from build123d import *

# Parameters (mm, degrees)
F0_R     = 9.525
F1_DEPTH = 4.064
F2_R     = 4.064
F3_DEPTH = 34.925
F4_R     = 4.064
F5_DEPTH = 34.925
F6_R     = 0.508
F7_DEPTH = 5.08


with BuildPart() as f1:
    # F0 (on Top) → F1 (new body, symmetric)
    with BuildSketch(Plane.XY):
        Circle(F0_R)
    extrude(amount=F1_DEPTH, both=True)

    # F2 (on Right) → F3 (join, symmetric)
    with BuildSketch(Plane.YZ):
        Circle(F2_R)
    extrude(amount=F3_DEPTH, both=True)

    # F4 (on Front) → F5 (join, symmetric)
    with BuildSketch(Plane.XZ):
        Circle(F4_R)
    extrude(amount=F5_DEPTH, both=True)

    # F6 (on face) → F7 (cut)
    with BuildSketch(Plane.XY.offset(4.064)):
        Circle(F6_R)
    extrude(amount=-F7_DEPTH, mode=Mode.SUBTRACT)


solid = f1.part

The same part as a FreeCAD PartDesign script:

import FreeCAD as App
import Part
import Sketcher
from FreeCAD import Vector
Q = App.Units.Quantity

doc = App.newDocument("Part")
body = doc.addObject("PartDesign::Body", "Body")

# Sketch on XY plane
sketch1 = body.newObject("Sketcher::SketchObject", "Sketch")
sketch1.AttachmentSupport = (doc.getObject("XY_Plane"), [""])
sketch1.MapMode = "FlatFace"
sketch1.addGeometry(Part.Circle(Vector(0, 0, 0), Vector(0, 0, 1), 10), False)
sketch1.addConstraint([
    Sketcher.Constraint("Coincident", 0, 3, -1, 1),
    Sketcher.Constraint("Diameter", 0, Q("0.75 in")),
])
pad1 = body.newObject("PartDesign::Pad", "Pad")
pad1.Profile = sketch1
pad1.Length = Q("0.32 in")
pad1.Midplane = True

# Sketch on YZ plane
sketch2 = body.newObject("Sketcher::SketchObject", "Sketch001")
sketch2.AttachmentSupport = (doc.getObject("YZ_Plane"), [""])
sketch2.MapMode = "FlatFace"
sketch2.addGeometry(Part.Circle(Vector(0, 0, 0), Vector(0, 0, 1), 4.1), False)
sketch2.addConstraint([
    Sketcher.Constraint("Coincident", 0, 3, -1, 1),
    Sketcher.Constraint("Diameter", 0, Q("0.32 in")),
])
pad2 = body.newObject("PartDesign::Pad", "Pad001")
pad2.Profile = sketch2
pad2.Length = Q("2.75 in")
pad2.Midplane = True

# Sketch on XZ plane
sketch3 = body.newObject("Sketcher::SketchObject", "Sketch002")
sketch3.AttachmentSupport = (doc.getObject("XZ_Plane"), [""])
sketch3.MapMode = "FlatFace"
sketch3.addGeometry(Part.Circle(Vector(0, 0, 0), Vector(0, 0, 1), 4.1), False)
sketch3.addConstraint([
    Sketcher.Constraint("Coincident", 0, 3, -1, 1),
    Sketcher.Constraint("Diameter", 0, Q("0.32 in")),
])
pad3 = body.newObject("PartDesign::Pad", "Pad002")
pad3.Profile = sketch3
pad3.Length = Q("2.75 in")
pad3.Midplane = True

# Sketch on XY plane
sketch4 = body.newObject("Sketcher::SketchObject", "Sketch003")
sketch4.AttachmentSupport = (doc.getObject("XY_Plane"), [""])
sketch4.MapMode = "FlatFace"
sketch4.AttachmentOffset = App.Placement(Vector(0, 0, 0.16 * 25.4), App.Rotation())
sketch4.addGeometry(Part.Circle(Vector(0, 0, 0), Vector(0, 0, 1), 0.5), False)
sketch4.addConstraint([
    Sketcher.Constraint("Coincident", 0, 3, -1, 1),
    Sketcher.Constraint("Diameter", 0, Q("0.04 in")),
])
pocket1 = body.newObject("PartDesign::Pocket", "Pocket")
pocket1.Profile = sketch4
pocket1.Length = Q("0.2 in")

doc.recompute()
